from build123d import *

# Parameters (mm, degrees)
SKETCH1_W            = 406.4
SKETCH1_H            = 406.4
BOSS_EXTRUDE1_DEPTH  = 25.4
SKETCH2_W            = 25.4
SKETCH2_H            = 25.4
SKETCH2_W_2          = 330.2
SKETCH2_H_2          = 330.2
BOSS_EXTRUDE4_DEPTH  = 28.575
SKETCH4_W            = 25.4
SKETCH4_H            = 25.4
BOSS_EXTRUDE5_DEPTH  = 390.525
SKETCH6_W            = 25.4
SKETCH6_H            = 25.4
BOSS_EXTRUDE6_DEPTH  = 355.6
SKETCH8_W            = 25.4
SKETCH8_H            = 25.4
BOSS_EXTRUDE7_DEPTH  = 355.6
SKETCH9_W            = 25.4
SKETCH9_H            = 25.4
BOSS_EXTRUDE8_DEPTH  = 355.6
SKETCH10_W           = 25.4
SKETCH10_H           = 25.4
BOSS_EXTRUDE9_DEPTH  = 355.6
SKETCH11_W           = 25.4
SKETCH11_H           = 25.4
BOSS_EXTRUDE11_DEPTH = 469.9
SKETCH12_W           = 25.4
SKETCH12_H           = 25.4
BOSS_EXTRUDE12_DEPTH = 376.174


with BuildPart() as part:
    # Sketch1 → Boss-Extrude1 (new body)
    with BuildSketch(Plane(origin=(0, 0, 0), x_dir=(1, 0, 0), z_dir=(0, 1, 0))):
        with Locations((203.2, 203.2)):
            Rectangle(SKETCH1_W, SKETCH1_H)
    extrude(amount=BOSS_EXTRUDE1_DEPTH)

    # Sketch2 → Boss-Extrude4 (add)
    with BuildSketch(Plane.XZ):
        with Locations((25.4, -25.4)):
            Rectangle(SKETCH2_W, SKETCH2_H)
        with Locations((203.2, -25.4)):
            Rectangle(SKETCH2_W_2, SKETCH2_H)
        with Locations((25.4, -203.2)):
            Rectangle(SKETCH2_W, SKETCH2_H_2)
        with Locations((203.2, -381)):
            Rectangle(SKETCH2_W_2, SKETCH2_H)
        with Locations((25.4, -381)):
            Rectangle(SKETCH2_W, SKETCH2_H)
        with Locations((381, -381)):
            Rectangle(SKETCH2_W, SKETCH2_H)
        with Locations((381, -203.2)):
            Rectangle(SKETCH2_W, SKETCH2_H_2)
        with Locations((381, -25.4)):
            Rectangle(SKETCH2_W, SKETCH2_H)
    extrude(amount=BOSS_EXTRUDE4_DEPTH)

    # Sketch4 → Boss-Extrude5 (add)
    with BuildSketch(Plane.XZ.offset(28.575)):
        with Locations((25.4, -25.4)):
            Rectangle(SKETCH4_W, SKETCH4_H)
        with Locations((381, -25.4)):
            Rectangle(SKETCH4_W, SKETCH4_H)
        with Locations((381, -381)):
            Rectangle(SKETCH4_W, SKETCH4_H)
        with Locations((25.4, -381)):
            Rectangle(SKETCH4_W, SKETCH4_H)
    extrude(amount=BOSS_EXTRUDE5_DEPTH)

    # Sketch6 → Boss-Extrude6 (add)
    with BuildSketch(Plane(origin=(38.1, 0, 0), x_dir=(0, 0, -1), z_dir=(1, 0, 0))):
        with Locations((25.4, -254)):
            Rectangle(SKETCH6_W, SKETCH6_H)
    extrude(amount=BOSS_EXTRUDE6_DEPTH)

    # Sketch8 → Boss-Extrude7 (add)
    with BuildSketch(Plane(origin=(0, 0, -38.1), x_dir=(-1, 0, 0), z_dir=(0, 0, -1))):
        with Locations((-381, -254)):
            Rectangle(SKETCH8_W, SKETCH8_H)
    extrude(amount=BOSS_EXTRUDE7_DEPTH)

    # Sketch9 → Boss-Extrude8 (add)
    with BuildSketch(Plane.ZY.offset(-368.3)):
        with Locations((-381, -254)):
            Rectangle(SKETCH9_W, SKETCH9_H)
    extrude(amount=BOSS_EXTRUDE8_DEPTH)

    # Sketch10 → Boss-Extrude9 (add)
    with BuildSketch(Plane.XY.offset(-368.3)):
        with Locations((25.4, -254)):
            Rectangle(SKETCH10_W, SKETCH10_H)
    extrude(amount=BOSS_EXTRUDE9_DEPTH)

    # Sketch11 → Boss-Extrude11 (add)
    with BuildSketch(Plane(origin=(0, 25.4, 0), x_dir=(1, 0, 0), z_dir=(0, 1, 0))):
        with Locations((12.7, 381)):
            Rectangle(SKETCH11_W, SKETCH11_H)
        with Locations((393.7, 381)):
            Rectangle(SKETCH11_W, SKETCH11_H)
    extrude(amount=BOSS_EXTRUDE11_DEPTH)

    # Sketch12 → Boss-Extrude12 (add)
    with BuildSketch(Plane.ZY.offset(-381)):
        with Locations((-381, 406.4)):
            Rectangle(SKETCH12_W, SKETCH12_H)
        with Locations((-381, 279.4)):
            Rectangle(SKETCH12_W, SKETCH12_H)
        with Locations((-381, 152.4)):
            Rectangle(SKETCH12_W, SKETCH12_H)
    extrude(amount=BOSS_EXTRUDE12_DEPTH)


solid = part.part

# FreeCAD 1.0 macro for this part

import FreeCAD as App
import Part
import Sketcher
Q = App.Units.Quantity

doc = App.newDocument("Part")
body = doc.addObject("PartDesign::Body", "Body")

sketch1 = body.newObject("Sketcher::SketchObject", "Sketch")
sketch1.AttachmentSupport = (doc.getObject("XZ_Plane"), [""])
sketch1.MapMode = "FlatFace"
sketch1.addGeometry([
    Part.LineSegment(App.Vector(0, -406, 0), App.Vector(0, 0, 0)),
    Part.LineSegment(App.Vector(0, 0, 0), App.Vector(406, 0, 0)),
    Part.LineSegment(App.Vector(406, 0, 0), App.Vector(406, -406, 0)),
    Part.LineSegment(App.Vector(406, -406, 0), App.Vector(0, -406, 0)),
], False)
sketch1.addConstraint([
    Sketcher.Constraint("Coincident", 0, 2, 1, 1),
    Sketcher.Constraint("Coincident", 1, 2, 2, 1),
    Sketcher.Constraint("Coincident", 2, 2, 3, 1),
    Sketcher.Constraint("Coincident", 3, 2, 0, 1),
    Sketcher.Constraint("Vertical", 0),
    Sketcher.Constraint("Horizontal", 1),
    Sketcher.Constraint("Vertical", 2),
    Sketcher.Constraint("Horizontal", 3),
    Sketcher.Constraint("Coincident", 0, 2, -1, 1),
    Sketcher.Constraint("Equal", 3, 0),
    Sketcher.Constraint("DistanceX", 1, 1, 1, 2, Q("16 in")),
])
pad1 = body.newObject("PartDesign::Pad", "Pad")
pad1.Profile = sketch1
pad1.Length = Q("1 in")
pad1.Reversed = True

sketch2 = body.newObject("Sketcher::SketchObject", "Sketch001")
sketch2.AttachmentSupport = (doc.getObject("XZ_Plane"), [""])
sketch2.MapMode = "FlatFace"
sketch2.addGeometry([
    Part.LineSegment(App.Vector(394, -394, 0), App.Vector(394, -13, 0)),
    Part.LineSegment(App.Vector(394, -13, 0), App.Vector(13, -13, 0)),
    Part.LineSegment(App.Vector(13, -13, 0), App.Vector(13, -394, 0)),
    Part.LineSegment(App.Vector(13, -394, 0), App.Vector(394, -394, 0)),
    Part.LineSegment(App.Vector(368, -38, 0), App.Vector(368, -368, 0)),
    Part.LineSegment(App.Vector(368, -368, 0), App.Vector(38, -368, 0)),
    Part.LineSegment(App.Vector(38, -368, 0), App.Vector(38, -38, 0)),
    Part.LineSegment(App.Vector(38, -38, 0), App.Vector(368, -38, 0)),
], False)
sketch2.addConstraint([
    Sketcher.Constraint("Coincident", 0, 2, 1, 1),
    Sketcher.Constraint("Coincident", 1, 2, 2, 1),
    Sketcher.Constraint("Coincident", 2, 2, 3, 1),
    Sketcher.Constraint("Coincident", 3, 2, 0, 1),
    Sketcher.Constraint("Coincident", 4, 2, 5, 1),
    Sketcher.Constraint("Coincident", 5, 2, 6, 1),
    Sketcher.Constraint("Coincident", 6, 2, 7, 1),
    Sketcher.Constraint("Coincident", 7, 2, 4, 1),
    Sketcher.Constraint("Vertical", 0),
    Sketcher.Constraint("Horizontal", 1),
    Sketcher.Constraint("Vertical", 2),
    Sketcher.Constraint("Horizontal", 3),
    Sketcher.Constraint("Vertical", 4),
    Sketcher.Constraint("Horizontal", 5),
    Sketcher.Constraint("Vertical", 6),
    Sketcher.Constraint("Horizontal", 7),
    Sketcher.Constraint("Equal", 3, 0),
    Sketcher.Constraint("Equal", 7, 4),
    Sketcher.Constraint("DistanceX", 1, 2, 1, 1, Q("15 in")),
    Sketcher.Constraint("DistanceX", 5, 2, 5, 1, Q("13 in")),
    Sketcher.Constraint("DistanceX", 4, 2, 3, 2, Q("1 in")),
    Sketcher.Constraint("DistanceY", 3, 2, 4, 2, Q("1 in")),
    Sketcher.Constraint("DistanceX", -1, 1, 0, 2, Q("15.5 in")),
    Sketcher.Constraint("DistanceY", 0, 2, -1, 1, Q("0.5 in")),
])
pad2 = body.newObject("PartDesign::Pad", "Pad001")
pad2.Profile = sketch2
pad2.Length = Q("1.125 in")

sketch3 = body.newObject("Sketcher::SketchObject", "Sketch002")
sketch3.AttachmentSupport = (doc.getObject("XZ_Plane"), [""])
sketch3.MapMode = "FlatFace"
sketch3.AttachmentOffset = App.Placement(App.Vector(0, 0, 1.125 * 25.4), App.Rotation())
sketch3.addGeometry([
    Part.LineSegment(App.Vector(13, -13, 0), App.Vector(13, -38, 0)),
    Part.LineSegment(App.Vector(13, -38, 0), App.Vector(38, -38, 0)),
    Part.LineSegment(App.Vector(38, -38, 0), App.Vector(38, -13, 0)),
    Part.LineSegment(App.Vector(38, -13, 0), App.Vector(13, -13, 0)),
    Part.LineSegment(App.Vector(368, -13, 0), App.Vector(368, -38, 0)),
    Part.LineSegment(App.Vector(368, -38, 0), App.Vector(394, -38, 0)),
    Part.LineSegment(App.Vector(394, -38, 0), App.Vector(394, -13, 0)),
    Part.LineSegment(App.Vector(394, -13, 0), App.Vector(368, -13, 0)),
    Part.LineSegment(App.Vector(368, -368, 0), App.Vector(368, -394, 0)),
    Part.LineSegment(App.Vector(368, -394, 0), App.Vector(394, -394, 0)),
    Part.LineSegment(App.Vector(394, -394, 0), App.Vector(394, -368, 0)),
    Part.LineSegment(App.Vector(394, -368, 0), App.Vector(368, -368, 0)),
    Part.LineSegment(App.Vector(13, -368, 0), App.Vector(13, -394, 0)),
    Part.LineSegment(App.Vector(13, -394, 0), App.Vector(38, -394, 0)),
    Part.LineSegment(App.Vector(38, -394, 0), App.Vector(38, -368, 0)),
    Part.LineSegment(App.Vector(38, -368, 0), App.Vector(13, -368, 0)),
], False)
sketch3.addConstraint([
    Sketcher.Constraint("Coincident", 0, 2, 1, 1),
    Sketcher.Constraint("Coincident", 1, 2, 2, 1),
    Sketcher.Constraint("Coincident", 2, 2, 3, 1),
    Sketcher.Constraint("Coincident", 3, 2, 0, 1),
    Sketcher.Constraint("Coincident", 4, 2, 5, 1),
    Sketcher.Constraint("Coincident", 5, 2, 6, 1),
    Sketcher.Constraint("Coincident", 6, 2, 7, 1),
    Sketcher.Constraint("Coincident", 7, 2, 4, 1),
    Sketcher.Constraint("Coincident", 8, 2, 9, 1),
    Sketcher.Constraint("Coincident", 9, 2, 10, 1),
    Sketcher.Constraint("Coincident", 10, 2, 11, 1),
    Sketcher.Constraint("Coincident", 11, 2, 8, 1),
    Sketcher.Constraint("Coincident", 12, 2, 13, 1),
    Sketcher.Constraint("Coincident", 13, 2, 14, 1),
    Sketcher.Constraint("Coincident", 14, 2, 15, 1),
    Sketcher.Constraint("Coincident", 15, 2, 12, 1),
    Sketcher.Constraint("Vertical", 0),
    Sketcher.Constraint("Horizontal", 1),
    Sketcher.Constraint("Vertical", 2),
    Sketcher.Constraint("Horizontal", 3),
    Sketcher.Constraint("Vertical", 4),
    Sketcher.Constraint("Horizontal", 5),
    Sketcher.Constraint("Vertical", 6),
    Sketcher.Constraint("Horizontal", 7),
    Sketcher.Constraint("Vertical", 8),
    Sketcher.Constraint("Horizontal", 9),
    Sketcher.Constraint("Vertical", 10),
    Sketcher.Constraint("Horizontal", 11),
    Sketcher.Constraint("Vertical", 12),
    Sketcher.Constraint("Horizontal", 13),
    Sketcher.Constraint("Vertical", 14),
    Sketcher.Constraint("Horizontal", 15),
    Sketcher.Constraint("Horizontal", 1, 2, 4, 2),
    Sketcher.Constraint("Horizontal", 3, 2, 6, 2),
    Sketcher.Constraint("Horizontal", 9, 2, 12, 2),
    Sketcher.Constraint("Horizontal", 11, 2, 14, 2),
    Sketcher.Constraint("Vertical", 7, 2, 8, 2),
    Sketcher.Constraint("Vertical", 6, 2, 9, 2),
    Sketcher.Constraint("Vertical", 3, 2, 12, 2),
    Sketcher.Constraint("Vertical", 2, 2, 13, 2),
    Sketcher.Constraint("Equal", 3, 5),
    Sketcher.Constraint("Equal", 15, 0),
    Sketcher.Constraint("Equal", 6, 8),
    Sketcher.Constraint("DistanceX", 1, 1, 1, 2, Q("1 in")),
    Sketcher.Constraint("DistanceX", 1, 2, 4, 2, Q("13 in")),
    Sketcher.Constraint("DistanceY", 8, 2, 4, 2, Q("14 in")),
    Sketcher.Constraint("DistanceX", -1, 1, 0, 2, Q("0.5 in")),
    Sketcher.Constraint("DistanceY", 0, 2, -1, 1, Q("1.5 in")),
])
pad3 = body.newObject("PartDesign::Pad", "Pad002")
pad3.Profile = sketch3
pad3.Length = Q("15.375 in")

sketch4 = body.newObject("Sketcher::SketchObject", "Sketch003")
sketch4.AttachmentSupport = (doc.getObject("YZ_Plane"), [""])
sketch4.MapMode = "FlatFace"
sketch4.AttachmentOffset = App.Placement(App.Vector(0, 0, 1.5 * 25.4), App.Rotation())
sketch4.addGeometry([
    Part.LineSegment(App.Vector(-241, -13, 0), App.Vector(-267, -13, 0)),
    Part.LineSegment(App.Vector(-267, -13, 0), App.Vector(-267, -38, 0)),
    Part.LineSegment(App.Vector(-267, -38, 0), App.Vector(-241, -38, 0)),
    Part.LineSegment(App.Vector(-241, -38, 0), App.Vector(-241, -13, 0)),
], False)
sketch4.addConstraint([
    Sketcher.Constraint("Coincident", 0, 2, 1, 1),
    Sketcher.Constraint("Coincident", 1, 2, 2, 1),
    Sketcher.Constraint("Coincident", 2, 2, 3, 1),
    Sketcher.Constraint("Coincident", 3, 2, 0, 1),
    Sketcher.Constraint("Horizontal", 0),
    Sketcher.Constraint("Vertical", 1),
    Sketcher.Constraint("Horizontal", 2),
    Sketcher.Constraint("Vertical", 3),
    Sketcher.Constraint("Equal", 2, 1),
    Sketcher.Constraint("DistanceX", 0, 2, 0, 1, Q("1 in")),
    Sketcher.Constraint("DistanceX", 0, 2, -1, 1, Q("10.5 in")),
    Sketcher.Constraint("DistanceY", 0, 2, -1, 1, Q("0.5 in")),
])
pad4 = body.newObject("PartDesign::Pad", "Pad003")
pad4.Profile = sketch4
pad4.Length = Q("14 in")

sketch5 = body.newObject("Sketcher::SketchObject", "Sketch004")
sketch5.AttachmentSupport = (doc.getObject("XY_Plane"), [""])
sketch5.MapMode = "FlatFace"
sketch5.AttachmentOffset = App.Placement(App.Vector(0, 0, -1.5 * 25.4), App.Rotation())
sketch5.addGeometry([
    Part.LineSegment(App.Vector(394, -241, 0), App.Vector(394, -267, 0)),
    Part.LineSegment(App.Vector(394, -267, 0), App.Vector(368, -267, 0)),
    Part.LineSegment(App.Vector(368, -267, 0), App.Vector(368, -241, 0)),
    Part.LineSegment(App.Vector(368, -241, 0), App.Vector(394, -241, 0)),
], False)
sketch5.addConstraint([
    Sketcher.Constraint("Coincident", 0, 2, 1, 1),
    Sketcher.Constraint("Coincident", 1, 2, 2, 1),
    Sketcher.Constraint("Coincident", 2, 2, 3, 1),
    Sketcher.Constraint("Coincident", 3, 2, 0, 1),
    Sketcher.Constraint("Vertical", 0),
    Sketcher.Constraint("Horizontal", 1),
    Sketcher.Constraint("Vertical", 2),
    Sketcher.Constraint("Horizontal", 3),
    Sketcher.Constraint("Equal", 3, 0),
    Sketcher.Constraint("DistanceX", 1, 2, 1, 1, Q("1 in")),
    Sketcher.Constraint("DistanceX", -1, 1, 0, 2, Q("15.5 in")),
    Sketcher.Constraint("DistanceY", 0, 2, -1, 1, Q("10.5 in")),
])
pad5 = body.newObject("PartDesign::Pad", "Pad004")
pad5.Profile = sketch5
pad5.Length = Q("14 in")
pad5.Reversed = True

sketch6 = body.newObject("Sketcher::SketchObject", "Sketch005")
sketch6.AttachmentSupport = (doc.getObject("YZ_Plane"), [""])
sketch6.MapMode = "FlatFace"
sketch6.AttachmentOffset = App.Placement(App.Vector(0, 0, 14.5 * 25.4), App.Rotation())
sketch6.addGeometry([
    Part.LineSegment(App.Vector(-241, -394, 0), App.Vector(-267, -394, 0)),
    Part.LineSegment(App.Vector(-267, -394, 0), App.Vector(-267, -368, 0)),
    Part.LineSegment(App.Vector(-267, -368, 0), App.Vector(-241, -368, 0)),
    Part.LineSegment(App.Vector(-241, -368, 0), App.Vector(-241, -394, 0)),
], False)
sketch6.addConstraint([
    Sketcher.Constraint("Coincident", 0, 2, 1, 1),
    Sketcher.Constraint("Coincident", 1, 2, 2, 1),
    Sketcher.Constraint("Coincident", 2, 2, 3, 1),
    Sketcher.Constraint("Coincident", 3, 2, 0, 1),
    Sketcher.Constraint("Horizontal", 0),
    Sketcher.Constraint("Vertical", 1),
    Sketcher.Constraint("Horizontal", 2),
    Sketcher.Constraint("Vertical", 3),
    Sketcher.Constraint("Equal", 2, 1),
    Sketcher.Constraint("DistanceX", 0, 2, 0, 1, Q("1 in")),
    Sketcher.Constraint("DistanceX", 0, 2, -1, 1, Q("10.5 in")),
    Sketcher.Constraint("DistanceY", 0, 2, -1, 1, Q("15.5 in")),
])
pad6 = body.newObject("PartDesign::Pad", "Pad005")
pad6.Profile = sketch6
pad6.Length = Q("14 in")
pad6.Reversed = True

sketch7 = body.newObject("Sketcher::SketchObject", "Sketch006")
sketch7.AttachmentSupport = (doc.getObject("XY_Plane"), [""])
sketch7.MapMode = "FlatFace"
sketch7.AttachmentOffset = App.Placement(App.Vector(0, 0, -14.5 * 25.4), App.Rotation())
sketch7.addGeometry([
    Part.LineSegment(App.Vector(13, -241, 0), App.Vector(13, -267, 0)),
    Part.LineSegment(App.Vector(13, -267, 0), App.Vector(38, -267, 0)),
    Part.LineSegment(App.Vector(38, -267, 0), App.Vector(38, -241, 0)),
    Part.LineSegment(App.Vector(38, -241, 0), App.Vector(13, -241, 0)),
], False)
sketch7.addConstraint([
    Sketcher.Constraint("Coincident", 0, 2, 1, 1),
    Sketcher.Constraint("Coincident", 1, 2, 2, 1),
    Sketcher.Constraint("Coincident", 2, 2, 3, 1),
    Sketcher.Constraint("Coincident", 3, 2, 0, 1),
    Sketcher.Constraint("Vertical", 0),
    Sketcher.Constraint("Horizontal", 1),
    Sketcher.Constraint("Vertical", 2),
    Sketcher.Constraint("Horizontal", 3),
    Sketcher.Constraint("Equal", 3, 0),
    Sketcher.Constraint("DistanceX", 1, 1, 1, 2, Q("1 in")),
    Sketcher.Constraint("DistanceX", -1, 1, 0, 2, Q("0.5 in")),
    Sketcher.Constraint("DistanceY", 0, 2, -1, 1, Q("10.5 in")),
])
pad7 = body.newObject("PartDesign::Pad", "Pad006")
pad7.Profile = sketch7
pad7.Length = Q("14 in")

sketch8 = body.newObject("Sketcher::SketchObject", "Sketch007")
sketch8.AttachmentSupport = (doc.getObject("XZ_Plane"), [""])
sketch8.MapMode = "FlatFace"
sketch8.AttachmentOffset = App.Placement(App.Vector(0, 0, -1 * 25.4), App.Rotation())
sketch8.addGeometry([
    Part.LineSegment(App.Vector(0, -394, 0), App.Vector(0, -368, 0)),
    Part.LineSegment(App.Vector(0, -368, 0), App.Vector(25, -368, 0)),
    Part.LineSegment(App.Vector(25, -368, 0), App.Vector(25, -394, 0)),
    Part.LineSegment(App.Vector(25, -394, 0), App.Vector(0, -394, 0)),
    Part.LineSegment(App.Vector(381, -394, 0), App.Vector(381, -368, 0)),
    Part.LineSegment(App.Vector(381, -368, 0), App.Vector(406, -368, 0)),
    Part.LineSegment(App.Vector(406, -368, 0), App.Vector(406, -394, 0)),
    Part.LineSegment(App.Vector(406, -394, 0), App.Vector(381, -394, 0)),
], False)
sketch8.addConstraint([
    Sketcher.Constraint("Coincident", 0, 2, 1, 1),
    Sketcher.Constraint("Coincident", 1, 2, 2, 1),
    Sketcher.Constraint("Coincident", 2, 2, 3, 1),
    Sketcher.Constraint("Coincident", 3, 2, 0, 1),
    Sketcher.Constraint("Coincident", 4, 2, 5, 1),
    Sketcher.Constraint("Coincident", 5, 2, 6, 1),
    Sketcher.Constraint("Coincident", 6, 2, 7, 1),
    Sketcher.Constraint("Coincident", 7, 2, 4, 1),
    Sketcher.Constraint("Vertical", 0),
    Sketcher.Constraint("Horizontal", 1),
    Sketcher.Constraint("Vertical", 2),
    Sketcher.Constraint("Horizontal", 3),
    Sketcher.Constraint("Vertical", 4),
    Sketcher.Constraint("Horizontal", 5),
    Sketcher.Constraint("Vertical", 6),
    Sketcher.Constraint("Horizontal", 7),
    Sketcher.Constraint("PointOnObject", 0, 2, -2),
    Sketcher.Constraint("Horizontal", 1, 2, 4, 2),
    Sketcher.Constraint("Horizontal", 3, 2, 6, 2),
    Sketcher.Constraint("Equal", 3, 5),
    Sketcher.Constraint("Equal", 7, 0),
    Sketcher.Constraint("DistanceX", 1, 1, 1, 2, Q("1 in")),
    Sketcher.Constraint("DistanceX", -1, 1, 4, 2, Q("15 in")),
    Sketcher.Constraint("DistanceY", 0, 2, -1, 1, Q("14.5 in")),
])
pad8 = body.newObject("PartDesign::Pad", "Pad007")
pad8.Profile = sketch8
pad8.Length = Q("18.5 in")
pad8.Reversed = True

sketch9 = body.newObject("Sketcher::SketchObject", "Sketch008")
sketch9.AttachmentSupport = (doc.getObject("YZ_Plane"), [""])
sketch9.MapMode = "FlatFace"
sketch9.AttachmentOffset = App.Placement(App.Vector(0, 0, 15 * 25.4), App.Rotation())
sketch9.addGeometry([
    Part.LineSegment(App.Vector(419, -394, 0), App.Vector(394, -394, 0)),
    Part.LineSegment(App.Vector(394, -394, 0), App.Vector(394, -368, 0)),
    Part.LineSegment(App.Vector(394, -368, 0), App.Vector(419, -368, 0)),
    Part.LineSegment(App.Vector(419, -368, 0), App.Vector(419, -394, 0)),
    Part.LineSegment(App.Vector(292, -394, 0), App.Vector(267, -394, 0)),
    Part.LineSegment(App.Vector(267, -394, 0), App.Vector(267, -368, 0)),
    Part.LineSegment(App.Vector(267, -368, 0), App.Vector(292, -368, 0)),
    Part.LineSegment(App.Vector(292, -368, 0), App.Vector(292, -394, 0)),
    Part.LineSegment(App.Vector(165, -394, 0), App.Vector(140, -394, 0)),
    Part.LineSegment(App.Vector(140, -394, 0), App.Vector(140, -368, 0)),
    Part.LineSegment(App.Vector(140, -368, 0), App.Vector(165, -368, 0)),
    Part.LineSegment(App.Vector(165, -368, 0), App.Vector(165, -394, 0)),
], False)
sketch9.addConstraint([
    Sketcher.Constraint("Coincident", 0, 2, 1, 1),
    Sketcher.Constraint("Coincident", 1, 2, 2, 1),
    Sketcher.Constraint("Coincident", 2, 2, 3, 1),
    Sketcher.Constraint("Coincident", 3, 2, 0, 1),
    Sketcher.Constraint("Coincident", 4, 2, 5, 1),
    Sketcher.Constraint("Coincident", 5, 2, 6, 1),
    Sketcher.Constraint("Coincident", 6, 2, 7, 1),
    Sketcher.Constraint("Coincident", 7, 2, 4, 1),
    Sketcher.Constraint("Coincident", 8, 2, 9, 1),
    Sketcher.Constraint("Coincident", 9, 2, 10, 1),
    Sketcher.Constraint("Coincident", 10, 2, 11, 1),
    Sketcher.Constraint("Coincident", 11, 2, 8, 1),
    Sketcher.Constraint("Horizontal", 0),
    Sketcher.Constraint("Vertical", 1),
    Sketcher.Constraint("Horizontal", 2),
    Sketcher.Constraint("Vertical", 3),
    Sketcher.Constraint("Horizontal", 4),
    Sketcher.Constraint("Vertical", 5),
    Sketcher.Constraint("Horizontal", 6),
    Sketcher.Constraint("Vertical", 7),
    Sketcher.Constraint("Horizontal", 8),
    Sketcher.Constraint("Vertical", 9),
    Sketcher.Constraint("Horizontal", 10),
    Sketcher.Constraint("Vertical", 11),
    Sketcher.Constraint("Horizontal", 3, 2, 4, 2),
    Sketcher.Constraint("Horizontal", 2, 2, 5, 2),
    Sketcher.Constraint("Horizontal", 7, 2, 8, 2),
    Sketcher.Constraint("Horizontal", 6, 2, 9, 2),
    Sketcher.Constraint("Equal", 2, 4),
    Sketcher.Constraint("Equal", 6, 8),
    Sketcher.Constraint("Equal", 10, 1),
    Sketcher.Constraint("DistanceX", 0, 2, 0, 1, Q("1 in")),
    Sketcher.Constraint("DistanceX", 4, 2, 0, 2, Q("5 in")),
    Sketcher.Constraint("DistanceX", 8, 2, 4, 2, Q("5 in")),
    Sketcher.Constraint("DistanceX", -1, 1, 0, 2, Q("15.5 in")),
    Sketcher.Constraint("DistanceY", 0, 2, -1, 1, Q("15.5 in")),
])
pad9 = body.newObject("PartDesign::Pad", "Pad008")
pad9.Profile = sketch9
pad9.Length = Q("14.81 in")
pad9.Reversed = True

doc.recompute()
